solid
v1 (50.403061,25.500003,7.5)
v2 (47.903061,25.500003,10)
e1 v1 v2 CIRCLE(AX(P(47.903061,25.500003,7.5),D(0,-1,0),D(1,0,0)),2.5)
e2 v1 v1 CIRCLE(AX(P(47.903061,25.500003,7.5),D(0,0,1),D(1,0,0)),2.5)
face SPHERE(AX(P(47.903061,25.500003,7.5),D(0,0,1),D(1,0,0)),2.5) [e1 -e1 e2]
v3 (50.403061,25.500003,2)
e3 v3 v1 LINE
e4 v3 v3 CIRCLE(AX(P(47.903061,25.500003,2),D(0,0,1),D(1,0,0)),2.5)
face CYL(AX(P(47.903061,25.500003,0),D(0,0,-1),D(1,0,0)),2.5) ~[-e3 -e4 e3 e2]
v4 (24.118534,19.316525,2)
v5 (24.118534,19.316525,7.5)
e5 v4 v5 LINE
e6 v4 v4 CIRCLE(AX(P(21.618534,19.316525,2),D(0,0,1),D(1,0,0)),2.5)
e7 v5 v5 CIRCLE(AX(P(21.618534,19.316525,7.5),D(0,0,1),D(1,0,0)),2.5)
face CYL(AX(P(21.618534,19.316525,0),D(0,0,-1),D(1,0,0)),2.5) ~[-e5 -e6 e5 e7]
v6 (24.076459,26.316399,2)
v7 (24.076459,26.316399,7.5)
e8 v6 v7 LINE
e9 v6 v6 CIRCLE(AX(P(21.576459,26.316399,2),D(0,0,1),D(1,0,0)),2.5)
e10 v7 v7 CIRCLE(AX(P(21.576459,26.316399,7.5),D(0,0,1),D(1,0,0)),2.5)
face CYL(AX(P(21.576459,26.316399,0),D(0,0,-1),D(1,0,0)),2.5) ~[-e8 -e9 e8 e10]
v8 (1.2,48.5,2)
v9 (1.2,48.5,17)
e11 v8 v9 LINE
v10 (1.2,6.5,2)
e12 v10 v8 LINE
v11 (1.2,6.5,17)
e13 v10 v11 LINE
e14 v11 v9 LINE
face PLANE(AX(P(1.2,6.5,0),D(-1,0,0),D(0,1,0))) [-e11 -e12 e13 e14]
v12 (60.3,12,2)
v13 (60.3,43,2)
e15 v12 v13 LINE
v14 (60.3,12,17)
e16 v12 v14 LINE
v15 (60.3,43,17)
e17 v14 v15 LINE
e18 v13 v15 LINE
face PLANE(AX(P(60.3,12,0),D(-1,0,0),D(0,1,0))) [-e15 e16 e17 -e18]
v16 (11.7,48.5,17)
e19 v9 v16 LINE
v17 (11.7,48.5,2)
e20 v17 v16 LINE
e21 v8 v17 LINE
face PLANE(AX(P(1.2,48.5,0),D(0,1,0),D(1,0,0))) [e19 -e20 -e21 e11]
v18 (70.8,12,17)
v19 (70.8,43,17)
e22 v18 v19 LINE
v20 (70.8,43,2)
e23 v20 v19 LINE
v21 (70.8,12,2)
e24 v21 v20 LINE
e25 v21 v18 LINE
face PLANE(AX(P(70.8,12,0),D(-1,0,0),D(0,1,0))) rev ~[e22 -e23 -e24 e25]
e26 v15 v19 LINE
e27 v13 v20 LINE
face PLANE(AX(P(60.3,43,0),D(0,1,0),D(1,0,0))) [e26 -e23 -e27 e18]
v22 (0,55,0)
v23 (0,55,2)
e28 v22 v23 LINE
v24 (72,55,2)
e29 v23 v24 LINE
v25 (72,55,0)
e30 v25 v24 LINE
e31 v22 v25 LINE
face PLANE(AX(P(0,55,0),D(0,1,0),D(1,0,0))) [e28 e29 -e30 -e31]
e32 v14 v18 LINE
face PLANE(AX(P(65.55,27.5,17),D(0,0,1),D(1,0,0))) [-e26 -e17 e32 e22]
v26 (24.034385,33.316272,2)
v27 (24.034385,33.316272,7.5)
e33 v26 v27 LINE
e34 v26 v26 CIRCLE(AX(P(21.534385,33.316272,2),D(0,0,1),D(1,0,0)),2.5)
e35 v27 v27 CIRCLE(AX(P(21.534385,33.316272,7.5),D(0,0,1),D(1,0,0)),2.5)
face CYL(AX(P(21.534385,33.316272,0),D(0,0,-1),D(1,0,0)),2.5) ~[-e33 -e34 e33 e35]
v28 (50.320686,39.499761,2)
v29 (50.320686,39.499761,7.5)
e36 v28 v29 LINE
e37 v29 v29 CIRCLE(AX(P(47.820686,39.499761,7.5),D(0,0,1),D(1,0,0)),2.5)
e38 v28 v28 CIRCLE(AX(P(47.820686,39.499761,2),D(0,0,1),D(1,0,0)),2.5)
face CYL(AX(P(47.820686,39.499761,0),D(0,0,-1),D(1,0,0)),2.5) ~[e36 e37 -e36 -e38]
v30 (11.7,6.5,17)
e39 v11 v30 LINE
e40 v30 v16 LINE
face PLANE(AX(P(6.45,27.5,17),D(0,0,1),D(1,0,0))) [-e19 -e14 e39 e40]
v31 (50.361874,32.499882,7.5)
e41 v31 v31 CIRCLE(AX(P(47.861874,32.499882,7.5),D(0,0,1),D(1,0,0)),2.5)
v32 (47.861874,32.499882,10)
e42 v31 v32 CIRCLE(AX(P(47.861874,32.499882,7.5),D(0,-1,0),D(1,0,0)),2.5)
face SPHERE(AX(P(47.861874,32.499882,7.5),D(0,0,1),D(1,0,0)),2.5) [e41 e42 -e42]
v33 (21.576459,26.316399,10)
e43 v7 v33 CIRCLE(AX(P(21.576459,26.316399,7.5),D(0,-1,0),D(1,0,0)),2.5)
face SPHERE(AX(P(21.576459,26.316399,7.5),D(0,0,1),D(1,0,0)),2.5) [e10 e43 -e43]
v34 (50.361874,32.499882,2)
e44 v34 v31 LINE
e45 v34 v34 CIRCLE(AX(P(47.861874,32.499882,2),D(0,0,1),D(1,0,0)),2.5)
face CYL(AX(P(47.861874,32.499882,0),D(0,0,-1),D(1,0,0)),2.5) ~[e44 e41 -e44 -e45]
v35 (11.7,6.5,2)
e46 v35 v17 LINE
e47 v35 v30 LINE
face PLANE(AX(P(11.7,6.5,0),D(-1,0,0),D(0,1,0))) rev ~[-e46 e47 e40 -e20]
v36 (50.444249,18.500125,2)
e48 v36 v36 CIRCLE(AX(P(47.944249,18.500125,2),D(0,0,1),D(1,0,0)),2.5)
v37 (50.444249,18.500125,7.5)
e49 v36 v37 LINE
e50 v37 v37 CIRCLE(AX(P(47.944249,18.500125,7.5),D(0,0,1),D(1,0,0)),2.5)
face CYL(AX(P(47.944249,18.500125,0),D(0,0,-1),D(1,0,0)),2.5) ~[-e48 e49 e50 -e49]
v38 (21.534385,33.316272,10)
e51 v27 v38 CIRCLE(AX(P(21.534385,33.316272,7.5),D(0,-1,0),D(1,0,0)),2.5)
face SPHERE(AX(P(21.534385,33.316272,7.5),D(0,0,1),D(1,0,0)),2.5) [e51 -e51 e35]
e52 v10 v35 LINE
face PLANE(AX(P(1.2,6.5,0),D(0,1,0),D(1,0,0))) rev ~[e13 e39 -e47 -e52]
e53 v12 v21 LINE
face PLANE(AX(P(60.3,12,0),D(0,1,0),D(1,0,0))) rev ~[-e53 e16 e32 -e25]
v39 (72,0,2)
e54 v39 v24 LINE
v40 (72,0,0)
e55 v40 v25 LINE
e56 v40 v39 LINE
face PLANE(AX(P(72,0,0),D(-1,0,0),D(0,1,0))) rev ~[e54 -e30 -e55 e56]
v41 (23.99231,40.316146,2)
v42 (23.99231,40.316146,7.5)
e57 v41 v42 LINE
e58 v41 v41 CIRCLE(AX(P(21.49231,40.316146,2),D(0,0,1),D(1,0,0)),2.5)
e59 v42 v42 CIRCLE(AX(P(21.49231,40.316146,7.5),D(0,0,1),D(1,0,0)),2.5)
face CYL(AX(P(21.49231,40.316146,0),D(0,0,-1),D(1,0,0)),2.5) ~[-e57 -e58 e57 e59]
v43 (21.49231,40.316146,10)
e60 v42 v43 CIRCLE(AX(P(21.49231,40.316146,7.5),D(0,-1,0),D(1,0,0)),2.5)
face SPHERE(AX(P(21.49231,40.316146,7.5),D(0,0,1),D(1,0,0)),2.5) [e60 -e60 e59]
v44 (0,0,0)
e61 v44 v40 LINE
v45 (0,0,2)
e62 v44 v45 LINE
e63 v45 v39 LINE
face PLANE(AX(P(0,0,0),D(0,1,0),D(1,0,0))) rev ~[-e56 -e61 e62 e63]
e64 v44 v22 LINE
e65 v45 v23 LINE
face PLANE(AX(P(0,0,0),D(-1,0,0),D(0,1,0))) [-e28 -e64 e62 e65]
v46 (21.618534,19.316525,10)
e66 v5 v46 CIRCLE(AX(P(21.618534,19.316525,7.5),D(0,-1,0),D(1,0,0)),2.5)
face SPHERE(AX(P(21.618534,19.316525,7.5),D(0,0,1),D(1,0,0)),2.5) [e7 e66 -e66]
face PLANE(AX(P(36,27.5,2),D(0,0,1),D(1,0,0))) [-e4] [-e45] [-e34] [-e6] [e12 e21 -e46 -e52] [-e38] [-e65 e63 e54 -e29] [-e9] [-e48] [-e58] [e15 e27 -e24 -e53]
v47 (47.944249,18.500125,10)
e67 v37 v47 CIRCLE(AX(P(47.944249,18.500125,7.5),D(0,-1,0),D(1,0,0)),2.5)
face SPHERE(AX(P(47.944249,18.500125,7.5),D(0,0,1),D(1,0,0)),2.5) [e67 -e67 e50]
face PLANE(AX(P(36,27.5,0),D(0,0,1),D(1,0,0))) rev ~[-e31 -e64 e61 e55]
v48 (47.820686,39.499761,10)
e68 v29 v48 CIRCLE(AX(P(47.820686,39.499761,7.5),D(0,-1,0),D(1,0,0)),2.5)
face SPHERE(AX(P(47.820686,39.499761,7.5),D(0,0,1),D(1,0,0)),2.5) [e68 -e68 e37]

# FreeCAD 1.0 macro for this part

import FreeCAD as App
import Part
import Sketcher
from FreeCAD import Vector


def edges_at(feature, points):
    """Names of the edges that pass closest to the given points."""
    edges = feature.Shape.Edges
    near = lambda p: min(range(len(edges)), key=lambda i: edges[i].distToShape(Part.Vertex(*p))[0])
    return sorted({f"Edge{near(p) + 1}" for p in points})


def add_polygon(sketch, points):
    """Adds a closed chain of lines whose ends are joined by coincident constraints."""
    first, n = sketch.GeometryCount, len(points)
    for a, b in zip(points, points[1:] + points[:1]):
        sketch.addGeometry(Part.LineSegment(App.Vector(*a, 0), App.Vector(*b, 0)), False)
    for i in range(n):
        sketch.addConstraint(Sketcher.Constraint("Coincident", first + i, 2, first + (i + 1) % n, 1))

doc = App.newDocument("Part")
body = doc.addObject("PartDesign::Body", "Body")

sketch1 = body.newObject("Sketcher::SketchObject", "Sketch")
sketch1.AttachmentSupport = (doc.getObject("XY_Plane"), [""])
sketch1.MapMode = "FlatFace"
add_polygon(sketch1, [(0, 55), (0, 0), (72, 0), (72, 55)])
sketch1.addGeometry(Part.Circle(Vector(21.6, 19.3, 0), Vector(0, 0, 1), 2.5), False)
sketch1.addGeometry(Part.Circle(Vector(21.6, 26.3, 0), Vector(0, 0, 1), 2.5), False)
sketch1.addGeometry(Part.Circle(Vector(47.9, 18.5, 0), Vector(0, 0, 1), 2.5), False)
sketch1.addGeometry(Part.Circle(Vector(47.9, 25.5, 0), Vector(0, 0, 1), 2.5), False)
add_polygon(sketch1, [(11.7, 6.5), (1.2, 6.5), (1.2, 48.5), (11.7, 48.5)])
sketch1.addGeometry(Part.Circle(Vector(21.5, 33.3, 0), Vector(0, 0, 1), 2.5), False)
sketch1.addGeometry(Part.Circle(Vector(21.5, 40.3, 0), Vector(0, 0, 1), 2.5), False)
sketch1.addGeometry(Part.Circle(Vector(47.9, 32.5, 0), Vector(0, 0, 1), 2.5), False)
add_polygon(sketch1, [(70.8, 12), (60.3, 12), (60.3, 43), (70.8, 43)])
sketch1.addGeometry(Part.Circle(Vector(47.8, 39.5, 0), Vector(0, 0, 1), 2.5), False)
sketch1.addConstraint([
    Sketcher.Constraint("Vertical", 0),
    Sketcher.Constraint("Horizontal", 1),
    Sketcher.Constraint("Vertical", 2),
    Sketcher.Constraint("Horizontal", 3),
    Sketcher.Constraint("Horizontal", 8),
    Sketcher.Constraint("Vertical", 9),
    Sketcher.Constraint("Horizontal", 10),
    Sketcher.Constraint("Vertical", 11),
    Sketcher.Constraint("Horizontal", 15),
    Sketcher.Constraint("Vertical", 16),
    Sketcher.Constraint("Horizontal", 17),
    Sketcher.Constraint("Vertical", 18),
    Sketcher.Constraint("Coincident", 0, 2, -1, 1),
    Sketcher.Constraint("Equal", 4, 5),
    Sketcher.Constraint("Equal", 5, 6),
    Sketcher.Constraint("Equal", 6, 7),
    Sketcher.Constraint("Equal", 7, 12),
    Sketcher.Constraint("Equal", 12, 13),
    Sketcher.Constraint("Equal", 13, 14),
    Sketcher.Constraint("Equal", 14, 19),
    Sketcher.Constraint("Equal", 10, 15),
    Sketcher.Constraint("Diameter", 4, 5.0),
    Sketcher.Constraint("DistanceX", 1, 1, 1, 2, 72.0),
    Sketcher.Constraint("DistanceY", 0, 2, 0, 1, 55.0),
    Sketcher.Constraint("DistanceY", 9, 1, 9, 2, 42.0),
    Sketcher.Constraint("DistanceY", 16, 1, 16, 2, 31.0),
    Sketcher.Constraint("DistanceX", 8, 2, 8, 1, 10.5),
    Sketcher.Constraint("DistanceY", -1, 1, 15, 2, 12.0),
    Sketcher.Constraint("DistanceX", -1, 1, 8, 2, 1.2),
    Sketcher.Constraint("DistanceY", -1, 1, 8, 2, 6.5),
    Sketcher.Constraint("DistanceX", -1, 1, 15, 2, 60.3),
    Sketcher.Constraint("DistanceY", -1, 1, 5, 3, 26.316399),
    Sketcher.Constraint("DistanceY", 6, 3, 4, 3, 0.8164),
    Sketcher.Constraint("DistanceX", 12, 3, 19, 3, 26.286301),
    Sketcher.Constraint("DistanceX", -1, 1, 5, 3, 21.576459),
    Sketcher.Constraint("DistanceX", -1, 1, 6, 3, 47.944249),
    Sketcher.Constraint("DistanceX", -1, 1, 7, 3, 47.903061),
    Sketcher.Constraint("DistanceY", -1, 1, 12, 3, 33.316272),
    Sketcher.Constraint("DistanceX", -1, 1, 13, 3, 21.49231),
    Sketcher.Constraint("DistanceY", -1, 1, 19, 3, 39.499761),
    Sketcher.Constraint("DistanceY", 4, 3, 7, 3, 6.183478),
    Sketcher.Constraint("DistanceX", 12, 3, 4, 3, 0.084149),
    Sketcher.Constraint("DistanceY", 7, 3, 12, 3, 7.816269),
    Sketcher.Constraint("DistanceY", 4, 3, 13, 3, 20.999621),
    Sketcher.Constraint("DistanceY", 7, 3, 14, 3, 6.999879),
    Sketcher.Constraint("DistanceX", 12, 3, 14, 3, 26.327489),
    Sketcher.Constraint("DistanceX", -1, 1, 4, 3, 21.618534),
])
pad1 = body.newObject("PartDesign::Pad", "Pad")
pad1.Profile = sketch1
pad1.Length = 2

sketch2 = body.newObject("Sketcher::SketchObject", "Sketch001")
sketch2.AttachmentSupport = (doc.getObject("XY_Plane"), [""])
sketch2.MapMode = "FlatFace"
add_polygon(sketch2, [(60, 43), (60, 12), (71, 12), (71, 43)])
add_polygon(sketch2, [(1, 48), (1, 6), (12, 6), (12, 48)])
sketch2.addConstraint([
    Sketcher.Constraint("Vertical", 0),
    Sketcher.Constraint("Horizontal", 1),
    Sketcher.Constraint("Vertical", 2),
    Sketcher.Constraint("Horizontal", 3),
    Sketcher.Constraint("Vertical", 4),
    Sketcher.Constraint("Horizontal", 5),
    Sketcher.Constraint("Vertical", 6),
    Sketcher.Constraint("Horizontal", 7),
    Sketcher.Constraint("Equal", 3, 5),
    Sketcher.Constraint("DistanceY", 0, 2, 0, 1, 31.0),
    Sketcher.Constraint("DistanceY", 4, 2, 4, 1, 42.0),
    Sketcher.Constraint("DistanceX", 1, 1, 1, 2, 10.5),
    Sketcher.Constraint("DistanceY", -1, 1, 0, 2, 12.0),
    Sketcher.Constraint("DistanceX", -1, 1, 0, 2, 60.3),
    Sketcher.Constraint("DistanceX", -1, 1, 4, 2, 1.2),
    Sketcher.Constraint("DistanceY", -1, 1, 4, 2, 6.5),
])
pad2 = body.newObject("PartDesign::Pad", "Pad001")
pad2.Profile = sketch2
pad2.Length = 17

sketch3 = body.newObject("Sketcher::SketchObject", "Sketch002")
sketch3.AttachmentSupport = (doc.getObject("XY_Plane"), [""])
sketch3.MapMode = "FlatFace"
sketch3.addGeometry([
    Part.Circle(Vector(21.5, 40.3, 0), Vector(0, 0, 1), 2.5),
    Part.Circle(Vector(21.5, 33.3, 0), Vector(0, 0, 1), 2.5),
    Part.Circle(Vector(21.6, 26.3, 0), Vector(0, 0, 1), 2.5),
    Part.Circle(Vector(21.6, 19.3, 0), Vector(0, 0, 1), 2.5),
    Part.Circle(Vector(47.8, 39.5, 0), Vector(0, 0, 1), 2.5),
    Part.Circle(Vector(47.9, 32.5, 0), Vector(0, 0, 1), 2.5),
    Part.Circle(Vector(47.9, 25.5, 0), Vector(0, 0, 1), 2.5),
    Part.Circle(Vector(47.9, 18.5, 0), Vector(0, 0, 1), 2.5),
], False)
sketch3.addConstraint([
    Sketcher.Constraint("Equal", 0, 1),
    Sketcher.Constraint("Equal", 1, 2),
    Sketcher.Constraint("Equal", 2, 3),
    Sketcher.Constraint("Equal", 3, 4),
    Sketcher.Constraint("Equal", 4, 5),
    Sketcher.Constraint("Equal", 5, 6),
    Sketcher.Constraint("Equal", 6, 7),
    Sketcher.Constraint("Diameter", 0, 5.0),
    Sketcher.Constraint("DistanceY", -1, 1, 2, 3, 26.316399),
    Sketcher.Constraint("DistanceX", 1, 3, 4, 3, 26.286301),
    Sketcher.Constraint("DistanceY", 7, 3, 3, 3, 0.8164),
    Sketcher.Constraint("DistanceX", -1, 1, 0, 3, 21.49231),
    Sketcher.Constraint("DistanceY", -1, 1, 1, 3, 33.316272),
    Sketcher.Constraint("DistanceX", -1, 1, 2, 3, 21.576459),
    Sketcher.Constraint("DistanceY", -1, 1, 4, 3, 39.499761),
    Sketcher.Constraint("DistanceX", -1, 1, 6, 3, 47.903061),
    Sketcher.Constraint("DistanceX", -1, 1, 7, 3, 47.944249),
    Sketcher.Constraint("DistanceX", 1, 3, 3, 3, 0.084149),
    Sketcher.Constraint("DistanceY", 3, 3, 0, 3, 20.999621),
    Sketcher.Constraint("DistanceY", 5, 3, 4, 3, 6.999879),
    Sketcher.Constraint("DistanceX", 1, 3, 5, 3, 26.327489),
    Sketcher.Constraint("DistanceY", 6, 3, 5, 3, 6.999879),
    Sketcher.Constraint("DistanceY", 3, 3, 6, 3, 6.183478),
    Sketcher.Constraint("DistanceX", -1, 1, 1, 3, 21.534385),
])
pad3 = body.newObject("PartDesign::Pad", "Pad002")
pad3.Profile = sketch3
pad3.Length = 10
doc.recompute()

fillet = body.newObject("PartDesign::Fillet", "Fillet")
fillet.Base = (pad3, edges_at(pad3, [
    (18.992, 40.316, 10),
    (19.034, 33.316, 10),
    (19.076, 26.316, 10),
    (19.119, 19.317, 10),
    (45.321, 39.5, 10),
    (45.362, 32.5, 10),
    (45.403, 25.5, 10),
    (45.444, 18.5, 10),
]))
fillet.Radius = 2.5

doc.recompute()
